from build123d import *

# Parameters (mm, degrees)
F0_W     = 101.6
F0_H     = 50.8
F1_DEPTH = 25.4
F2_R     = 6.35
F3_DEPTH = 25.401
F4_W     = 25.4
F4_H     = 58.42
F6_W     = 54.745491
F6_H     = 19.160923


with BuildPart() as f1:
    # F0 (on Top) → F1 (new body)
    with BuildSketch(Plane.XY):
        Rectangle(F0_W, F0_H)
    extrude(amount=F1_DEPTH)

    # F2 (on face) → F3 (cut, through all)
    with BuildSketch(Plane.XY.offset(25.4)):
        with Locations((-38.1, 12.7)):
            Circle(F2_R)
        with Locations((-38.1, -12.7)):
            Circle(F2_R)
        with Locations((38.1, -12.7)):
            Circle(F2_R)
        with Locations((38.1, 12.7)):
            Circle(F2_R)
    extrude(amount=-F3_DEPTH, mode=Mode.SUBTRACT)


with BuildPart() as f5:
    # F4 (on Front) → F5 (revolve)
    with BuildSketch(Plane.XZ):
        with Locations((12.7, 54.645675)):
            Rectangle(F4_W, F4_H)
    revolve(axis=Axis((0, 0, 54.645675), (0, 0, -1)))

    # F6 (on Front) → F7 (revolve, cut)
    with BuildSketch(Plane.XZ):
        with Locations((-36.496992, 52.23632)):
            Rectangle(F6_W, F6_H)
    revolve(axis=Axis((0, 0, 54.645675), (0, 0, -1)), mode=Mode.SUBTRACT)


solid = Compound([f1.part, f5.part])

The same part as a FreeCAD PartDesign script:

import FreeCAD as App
import Part
import Sketcher

V = App.Vector
Q = App.Units.Quantity

doc = App.newDocument("Part")
params = doc.addObject("Spreadsheet::Sheet", "Params")
for row, (alias, value) in enumerate([
    ("sketch1_width", "4 in"),
    ("sketch1_height", "2 in"),
    ("pad1_length", "1 in"),
    ("sketch2_diameter", "0.5 in"),
    ("sketch3_width", "1 in"),
    ("sketch3_height", "2.3 in"),
    ("revolution_angle", "360 deg"),
    ("groove_angle", "360 deg"),
], start=1):
    params.set(f"A{row}", alias)
    params.set(f"B{row}", "=" + value)
    params.setAlias(f"B{row}", alias)

body = doc.addObject("PartDesign::Body", "Body")

# Sketch on XY plane
sketch1 = body.newObject("Sketcher::SketchObject", "Sketch")
sketch1.AttachmentSupport = (doc.getObject("XY_Plane"), [""])
sketch1.MapMode = "FlatFace"
sketch1.addGeometry(Part.LineSegment(V(-51, 25, 0), V(-51, -25, 0)), False)
sketch1.addGeometry(Part.LineSegment(V(-51, -25, 0), V(51, -25, 0)), False)
sketch1.addGeometry(Part.LineSegment(V(51, -25, 0), V(51, 25, 0)), False)
sketch1.addGeometry(Part.LineSegment(V(51, 25, 0), V(-51, 25, 0)), False)
sketch1.addConstraint(Sketcher.Constraint("Coincident", 0, 2, 1, 1))
sketch1.addConstraint(Sketcher.Constraint("Coincident", 1, 2, 2, 1))
sketch1.addConstraint(Sketcher.Constraint("Coincident", 2, 2, 3, 1))
sketch1.addConstraint(Sketcher.Constraint("Coincident", 3, 2, 0, 1))
sketch1.addConstraint(Sketcher.Constraint("Vertical", 0))
sketch1.addConstraint(Sketcher.Constraint("Horizontal", 1))
sketch1.addConstraint(Sketcher.Constraint("Vertical", 2))
sketch1.addConstraint(Sketcher.Constraint("Horizontal", 3))
sketch1.addConstraint(Sketcher.Constraint("Symmetric", 0, 2, 2, 2, -1, 1))
sketch1.addConstraint(Sketcher.Constraint("DistanceX", 1, 1, 1, 2, Q("4 in")))
sketch1.addConstraint(Sketcher.Constraint("DistanceY", 0, 2, 0, 1, Q("2 in")))
sketch1.setExpression("Constraints[9]", "Params.sketch1_width")
sketch1.setExpression("Constraints[10]", "Params.sketch1_height")
pad1 = body.newObject("PartDesign::Pad", "Pad")
pad1.Profile = sketch1
pad1.setExpression("Length", "Params.pad1_length")

# Sketch on XY plane
sketch2 = body.newObject("Sketcher::SketchObject", "Sketch001")
sketch2.AttachmentSupport = (doc.getObject("XY_Plane"), [""])
sketch2.MapMode = "FlatFace"
sketch2.AttachmentOffset = App.Placement(V(0, 0, 1 * 25.4), App.Rotation())
sketch2.addGeometry(Part.Circle(V(-38, 13, 0), V(0, 0, 1), 6), False)
sketch2.addGeometry(Part.Circle(V(-38, -13, 0), V(0, 0, 1), 6), False)
sketch2.addGeometry(Part.Circle(V(38, -13, 0), V(0, 0, 1), 6), False)
sketch2.addGeometry(Part.Circle(V(38, 13, 0), V(0, 0, 1), 6), False)
sketch2.addConstraint(Sketcher.Constraint("Equal", 0, 1))
sketch2.addConstraint(Sketcher.Constraint("Equal", 1, 2))
sketch2.addConstraint(Sketcher.Constraint("Equal", 2, 3))
sketch2.addConstraint(Sketcher.Constraint("Symmetric", 0, 3, 2, 3, -1, 1))
sketch2.addConstraint(Sketcher.Constraint("Symmetric", 1, 3, 3, 3, -1, 1))
sketch2.addConstraint(Sketcher.Constraint("Symmetric", 1, 3, 2, 3, -2))
sketch2.addConstraint(Sketcher.Constraint("Diameter", 0, Q("0.5 in")))
sketch2.addConstraint(Sketcher.Constraint("DistanceY", 1, 3, 0, 3, Q("1 in")))
sketch2.addConstraint(Sketcher.Constraint("DistanceX", 1, 3, 2, 3, Q("3 in")))
sketch2.setExpression("Constraints[6]", "Params.sketch2_diameter")
pocket1 = body.newObject("PartDesign::Pocket", "Pocket")
pocket1.Profile = sketch2
pocket1.Type = "ThroughAll"
body2 = doc.addObject("PartDesign::Body", "Body001")

# Sketch on XZ plane
sketch3 = body2.newObject("Sketcher::SketchObject", "Sketch002")
sketch3.AttachmentSupport = (doc.getObject("XZ_Plane001"), [""])
sketch3.MapMode = "FlatFace"
sketch3.addGeometry(Part.LineSegment(V(0, 84, 0), V(0, 25, 0)), False)
sketch3.addGeometry(Part.LineSegment(V(0, 25, 0), V(25, 25, 0)), False)
sketch3.addGeometry(Part.LineSegment(V(25, 25, 0), V(25, 84, 0)), False)
sketch3.addGeometry(Part.LineSegment(V(25, 84, 0), V(0, 84, 0)), False)
sketch3.addConstraint(Sketcher.Constraint("Coincident", 0, 2, 1, 1))
sketch3.addConstraint(Sketcher.Constraint("Coincident", 1, 2, 2, 1))
sketch3.addConstraint(Sketcher.Constraint("Coincident", 2, 2, 3, 1))
sketch3.addConstraint(Sketcher.Constraint("Coincident", 3, 2, 0, 1))
sketch3.addConstraint(Sketcher.Constraint("Vertical", 0))
sketch3.addConstraint(Sketcher.Constraint("Horizontal", 1))
sketch3.addConstraint(Sketcher.Constraint("Vertical", 2))
sketch3.addConstraint(Sketcher.Constraint("Horizontal", 3))
sketch3.addConstraint(Sketcher.Constraint("PointOnObject", 0, 2, -2))
sketch3.addConstraint(Sketcher.Constraint("DistanceX", 1, 1, 1, 2, Q("1 in")))
sketch3.addConstraint(Sketcher.Constraint("DistanceY", 0, 2, 0, 1, Q("2.3 in")))
sketch3.addConstraint(Sketcher.Constraint("DistanceY", -1, 1, 0, 2, 25.435675))
sketch3.setExpression("Constraints[9]", "Params.sketch3_width")
sketch3.setExpression("Constraints[10]", "Params.sketch3_height")
revolution = body2.newObject("PartDesign::Revolution", "Revolution")
revolution.Profile = sketch3
revolution.ReferenceAxis = (sketch3, ["V_Axis"])
revolution.setExpression("Angle", "Params.revolution_angle")

# Sketch on XZ plane
sketch4 = body2.newObject("Sketcher::SketchObject", "Sketch003")
sketch4.AttachmentSupport = (doc.getObject("XZ_Plane001"), [""])
sketch4.MapMode = "FlatFace"
sketch4.addGeometry(Part.LineSegment(V(-64, 62, 0), V(-64, 43, 0)), False)
sketch4.addGeometry(Part.LineSegment(V(-64, 43, 0), V(-9, 43, 0)), False)
sketch4.addGeometry(Part.LineSegment(V(-9, 43, 0), V(-9, 62, 0)), False)
sketch4.addGeometry(Part.LineSegment(V(-9, 62, 0), V(-64, 62, 0)), False)
sketch4.addConstraint(Sketcher.Constraint("Coincident", 0, 2, 1, 1))
sketch4.addConstraint(Sketcher.Constraint("Coincident", 1, 2, 2, 1))
sketch4.addConstraint(Sketcher.Constraint("Coincident", 2, 2, 3, 1))
sketch4.addConstraint(Sketcher.Constraint("Coincident", 3, 2, 0, 1))
sketch4.addConstraint(Sketcher.Constraint("Vertical", 0))
sketch4.addConstraint(Sketcher.Constraint("Horizontal", 1))
sketch4.addConstraint(Sketcher.Constraint("Vertical", 2))
sketch4.addConstraint(Sketcher.Constraint("Horizontal", 3))
sketch4.addConstraint(Sketcher.Constraint("DistanceX", 1, 1, 1, 2, 54.745491))
sketch4.addConstraint(Sketcher.Constraint("DistanceY", 0, 2, 0, 1, 19.160923))
sketch4.addConstraint(Sketcher.Constraint("DistanceY", -1, 1, 0, 2, 42.655859))
sketch4.addConstraint(Sketcher.Constraint("DistanceX", 0, 2, -1, 1, 63.869737))
groove = body2.newObject("PartDesign::Groove", "Groove")
groove.Profile = sketch4
groove.ReferenceAxis = (sketch4, ["V_Axis"])
groove.setExpression("Angle", "Params.groove_angle")

doc.recompute()
